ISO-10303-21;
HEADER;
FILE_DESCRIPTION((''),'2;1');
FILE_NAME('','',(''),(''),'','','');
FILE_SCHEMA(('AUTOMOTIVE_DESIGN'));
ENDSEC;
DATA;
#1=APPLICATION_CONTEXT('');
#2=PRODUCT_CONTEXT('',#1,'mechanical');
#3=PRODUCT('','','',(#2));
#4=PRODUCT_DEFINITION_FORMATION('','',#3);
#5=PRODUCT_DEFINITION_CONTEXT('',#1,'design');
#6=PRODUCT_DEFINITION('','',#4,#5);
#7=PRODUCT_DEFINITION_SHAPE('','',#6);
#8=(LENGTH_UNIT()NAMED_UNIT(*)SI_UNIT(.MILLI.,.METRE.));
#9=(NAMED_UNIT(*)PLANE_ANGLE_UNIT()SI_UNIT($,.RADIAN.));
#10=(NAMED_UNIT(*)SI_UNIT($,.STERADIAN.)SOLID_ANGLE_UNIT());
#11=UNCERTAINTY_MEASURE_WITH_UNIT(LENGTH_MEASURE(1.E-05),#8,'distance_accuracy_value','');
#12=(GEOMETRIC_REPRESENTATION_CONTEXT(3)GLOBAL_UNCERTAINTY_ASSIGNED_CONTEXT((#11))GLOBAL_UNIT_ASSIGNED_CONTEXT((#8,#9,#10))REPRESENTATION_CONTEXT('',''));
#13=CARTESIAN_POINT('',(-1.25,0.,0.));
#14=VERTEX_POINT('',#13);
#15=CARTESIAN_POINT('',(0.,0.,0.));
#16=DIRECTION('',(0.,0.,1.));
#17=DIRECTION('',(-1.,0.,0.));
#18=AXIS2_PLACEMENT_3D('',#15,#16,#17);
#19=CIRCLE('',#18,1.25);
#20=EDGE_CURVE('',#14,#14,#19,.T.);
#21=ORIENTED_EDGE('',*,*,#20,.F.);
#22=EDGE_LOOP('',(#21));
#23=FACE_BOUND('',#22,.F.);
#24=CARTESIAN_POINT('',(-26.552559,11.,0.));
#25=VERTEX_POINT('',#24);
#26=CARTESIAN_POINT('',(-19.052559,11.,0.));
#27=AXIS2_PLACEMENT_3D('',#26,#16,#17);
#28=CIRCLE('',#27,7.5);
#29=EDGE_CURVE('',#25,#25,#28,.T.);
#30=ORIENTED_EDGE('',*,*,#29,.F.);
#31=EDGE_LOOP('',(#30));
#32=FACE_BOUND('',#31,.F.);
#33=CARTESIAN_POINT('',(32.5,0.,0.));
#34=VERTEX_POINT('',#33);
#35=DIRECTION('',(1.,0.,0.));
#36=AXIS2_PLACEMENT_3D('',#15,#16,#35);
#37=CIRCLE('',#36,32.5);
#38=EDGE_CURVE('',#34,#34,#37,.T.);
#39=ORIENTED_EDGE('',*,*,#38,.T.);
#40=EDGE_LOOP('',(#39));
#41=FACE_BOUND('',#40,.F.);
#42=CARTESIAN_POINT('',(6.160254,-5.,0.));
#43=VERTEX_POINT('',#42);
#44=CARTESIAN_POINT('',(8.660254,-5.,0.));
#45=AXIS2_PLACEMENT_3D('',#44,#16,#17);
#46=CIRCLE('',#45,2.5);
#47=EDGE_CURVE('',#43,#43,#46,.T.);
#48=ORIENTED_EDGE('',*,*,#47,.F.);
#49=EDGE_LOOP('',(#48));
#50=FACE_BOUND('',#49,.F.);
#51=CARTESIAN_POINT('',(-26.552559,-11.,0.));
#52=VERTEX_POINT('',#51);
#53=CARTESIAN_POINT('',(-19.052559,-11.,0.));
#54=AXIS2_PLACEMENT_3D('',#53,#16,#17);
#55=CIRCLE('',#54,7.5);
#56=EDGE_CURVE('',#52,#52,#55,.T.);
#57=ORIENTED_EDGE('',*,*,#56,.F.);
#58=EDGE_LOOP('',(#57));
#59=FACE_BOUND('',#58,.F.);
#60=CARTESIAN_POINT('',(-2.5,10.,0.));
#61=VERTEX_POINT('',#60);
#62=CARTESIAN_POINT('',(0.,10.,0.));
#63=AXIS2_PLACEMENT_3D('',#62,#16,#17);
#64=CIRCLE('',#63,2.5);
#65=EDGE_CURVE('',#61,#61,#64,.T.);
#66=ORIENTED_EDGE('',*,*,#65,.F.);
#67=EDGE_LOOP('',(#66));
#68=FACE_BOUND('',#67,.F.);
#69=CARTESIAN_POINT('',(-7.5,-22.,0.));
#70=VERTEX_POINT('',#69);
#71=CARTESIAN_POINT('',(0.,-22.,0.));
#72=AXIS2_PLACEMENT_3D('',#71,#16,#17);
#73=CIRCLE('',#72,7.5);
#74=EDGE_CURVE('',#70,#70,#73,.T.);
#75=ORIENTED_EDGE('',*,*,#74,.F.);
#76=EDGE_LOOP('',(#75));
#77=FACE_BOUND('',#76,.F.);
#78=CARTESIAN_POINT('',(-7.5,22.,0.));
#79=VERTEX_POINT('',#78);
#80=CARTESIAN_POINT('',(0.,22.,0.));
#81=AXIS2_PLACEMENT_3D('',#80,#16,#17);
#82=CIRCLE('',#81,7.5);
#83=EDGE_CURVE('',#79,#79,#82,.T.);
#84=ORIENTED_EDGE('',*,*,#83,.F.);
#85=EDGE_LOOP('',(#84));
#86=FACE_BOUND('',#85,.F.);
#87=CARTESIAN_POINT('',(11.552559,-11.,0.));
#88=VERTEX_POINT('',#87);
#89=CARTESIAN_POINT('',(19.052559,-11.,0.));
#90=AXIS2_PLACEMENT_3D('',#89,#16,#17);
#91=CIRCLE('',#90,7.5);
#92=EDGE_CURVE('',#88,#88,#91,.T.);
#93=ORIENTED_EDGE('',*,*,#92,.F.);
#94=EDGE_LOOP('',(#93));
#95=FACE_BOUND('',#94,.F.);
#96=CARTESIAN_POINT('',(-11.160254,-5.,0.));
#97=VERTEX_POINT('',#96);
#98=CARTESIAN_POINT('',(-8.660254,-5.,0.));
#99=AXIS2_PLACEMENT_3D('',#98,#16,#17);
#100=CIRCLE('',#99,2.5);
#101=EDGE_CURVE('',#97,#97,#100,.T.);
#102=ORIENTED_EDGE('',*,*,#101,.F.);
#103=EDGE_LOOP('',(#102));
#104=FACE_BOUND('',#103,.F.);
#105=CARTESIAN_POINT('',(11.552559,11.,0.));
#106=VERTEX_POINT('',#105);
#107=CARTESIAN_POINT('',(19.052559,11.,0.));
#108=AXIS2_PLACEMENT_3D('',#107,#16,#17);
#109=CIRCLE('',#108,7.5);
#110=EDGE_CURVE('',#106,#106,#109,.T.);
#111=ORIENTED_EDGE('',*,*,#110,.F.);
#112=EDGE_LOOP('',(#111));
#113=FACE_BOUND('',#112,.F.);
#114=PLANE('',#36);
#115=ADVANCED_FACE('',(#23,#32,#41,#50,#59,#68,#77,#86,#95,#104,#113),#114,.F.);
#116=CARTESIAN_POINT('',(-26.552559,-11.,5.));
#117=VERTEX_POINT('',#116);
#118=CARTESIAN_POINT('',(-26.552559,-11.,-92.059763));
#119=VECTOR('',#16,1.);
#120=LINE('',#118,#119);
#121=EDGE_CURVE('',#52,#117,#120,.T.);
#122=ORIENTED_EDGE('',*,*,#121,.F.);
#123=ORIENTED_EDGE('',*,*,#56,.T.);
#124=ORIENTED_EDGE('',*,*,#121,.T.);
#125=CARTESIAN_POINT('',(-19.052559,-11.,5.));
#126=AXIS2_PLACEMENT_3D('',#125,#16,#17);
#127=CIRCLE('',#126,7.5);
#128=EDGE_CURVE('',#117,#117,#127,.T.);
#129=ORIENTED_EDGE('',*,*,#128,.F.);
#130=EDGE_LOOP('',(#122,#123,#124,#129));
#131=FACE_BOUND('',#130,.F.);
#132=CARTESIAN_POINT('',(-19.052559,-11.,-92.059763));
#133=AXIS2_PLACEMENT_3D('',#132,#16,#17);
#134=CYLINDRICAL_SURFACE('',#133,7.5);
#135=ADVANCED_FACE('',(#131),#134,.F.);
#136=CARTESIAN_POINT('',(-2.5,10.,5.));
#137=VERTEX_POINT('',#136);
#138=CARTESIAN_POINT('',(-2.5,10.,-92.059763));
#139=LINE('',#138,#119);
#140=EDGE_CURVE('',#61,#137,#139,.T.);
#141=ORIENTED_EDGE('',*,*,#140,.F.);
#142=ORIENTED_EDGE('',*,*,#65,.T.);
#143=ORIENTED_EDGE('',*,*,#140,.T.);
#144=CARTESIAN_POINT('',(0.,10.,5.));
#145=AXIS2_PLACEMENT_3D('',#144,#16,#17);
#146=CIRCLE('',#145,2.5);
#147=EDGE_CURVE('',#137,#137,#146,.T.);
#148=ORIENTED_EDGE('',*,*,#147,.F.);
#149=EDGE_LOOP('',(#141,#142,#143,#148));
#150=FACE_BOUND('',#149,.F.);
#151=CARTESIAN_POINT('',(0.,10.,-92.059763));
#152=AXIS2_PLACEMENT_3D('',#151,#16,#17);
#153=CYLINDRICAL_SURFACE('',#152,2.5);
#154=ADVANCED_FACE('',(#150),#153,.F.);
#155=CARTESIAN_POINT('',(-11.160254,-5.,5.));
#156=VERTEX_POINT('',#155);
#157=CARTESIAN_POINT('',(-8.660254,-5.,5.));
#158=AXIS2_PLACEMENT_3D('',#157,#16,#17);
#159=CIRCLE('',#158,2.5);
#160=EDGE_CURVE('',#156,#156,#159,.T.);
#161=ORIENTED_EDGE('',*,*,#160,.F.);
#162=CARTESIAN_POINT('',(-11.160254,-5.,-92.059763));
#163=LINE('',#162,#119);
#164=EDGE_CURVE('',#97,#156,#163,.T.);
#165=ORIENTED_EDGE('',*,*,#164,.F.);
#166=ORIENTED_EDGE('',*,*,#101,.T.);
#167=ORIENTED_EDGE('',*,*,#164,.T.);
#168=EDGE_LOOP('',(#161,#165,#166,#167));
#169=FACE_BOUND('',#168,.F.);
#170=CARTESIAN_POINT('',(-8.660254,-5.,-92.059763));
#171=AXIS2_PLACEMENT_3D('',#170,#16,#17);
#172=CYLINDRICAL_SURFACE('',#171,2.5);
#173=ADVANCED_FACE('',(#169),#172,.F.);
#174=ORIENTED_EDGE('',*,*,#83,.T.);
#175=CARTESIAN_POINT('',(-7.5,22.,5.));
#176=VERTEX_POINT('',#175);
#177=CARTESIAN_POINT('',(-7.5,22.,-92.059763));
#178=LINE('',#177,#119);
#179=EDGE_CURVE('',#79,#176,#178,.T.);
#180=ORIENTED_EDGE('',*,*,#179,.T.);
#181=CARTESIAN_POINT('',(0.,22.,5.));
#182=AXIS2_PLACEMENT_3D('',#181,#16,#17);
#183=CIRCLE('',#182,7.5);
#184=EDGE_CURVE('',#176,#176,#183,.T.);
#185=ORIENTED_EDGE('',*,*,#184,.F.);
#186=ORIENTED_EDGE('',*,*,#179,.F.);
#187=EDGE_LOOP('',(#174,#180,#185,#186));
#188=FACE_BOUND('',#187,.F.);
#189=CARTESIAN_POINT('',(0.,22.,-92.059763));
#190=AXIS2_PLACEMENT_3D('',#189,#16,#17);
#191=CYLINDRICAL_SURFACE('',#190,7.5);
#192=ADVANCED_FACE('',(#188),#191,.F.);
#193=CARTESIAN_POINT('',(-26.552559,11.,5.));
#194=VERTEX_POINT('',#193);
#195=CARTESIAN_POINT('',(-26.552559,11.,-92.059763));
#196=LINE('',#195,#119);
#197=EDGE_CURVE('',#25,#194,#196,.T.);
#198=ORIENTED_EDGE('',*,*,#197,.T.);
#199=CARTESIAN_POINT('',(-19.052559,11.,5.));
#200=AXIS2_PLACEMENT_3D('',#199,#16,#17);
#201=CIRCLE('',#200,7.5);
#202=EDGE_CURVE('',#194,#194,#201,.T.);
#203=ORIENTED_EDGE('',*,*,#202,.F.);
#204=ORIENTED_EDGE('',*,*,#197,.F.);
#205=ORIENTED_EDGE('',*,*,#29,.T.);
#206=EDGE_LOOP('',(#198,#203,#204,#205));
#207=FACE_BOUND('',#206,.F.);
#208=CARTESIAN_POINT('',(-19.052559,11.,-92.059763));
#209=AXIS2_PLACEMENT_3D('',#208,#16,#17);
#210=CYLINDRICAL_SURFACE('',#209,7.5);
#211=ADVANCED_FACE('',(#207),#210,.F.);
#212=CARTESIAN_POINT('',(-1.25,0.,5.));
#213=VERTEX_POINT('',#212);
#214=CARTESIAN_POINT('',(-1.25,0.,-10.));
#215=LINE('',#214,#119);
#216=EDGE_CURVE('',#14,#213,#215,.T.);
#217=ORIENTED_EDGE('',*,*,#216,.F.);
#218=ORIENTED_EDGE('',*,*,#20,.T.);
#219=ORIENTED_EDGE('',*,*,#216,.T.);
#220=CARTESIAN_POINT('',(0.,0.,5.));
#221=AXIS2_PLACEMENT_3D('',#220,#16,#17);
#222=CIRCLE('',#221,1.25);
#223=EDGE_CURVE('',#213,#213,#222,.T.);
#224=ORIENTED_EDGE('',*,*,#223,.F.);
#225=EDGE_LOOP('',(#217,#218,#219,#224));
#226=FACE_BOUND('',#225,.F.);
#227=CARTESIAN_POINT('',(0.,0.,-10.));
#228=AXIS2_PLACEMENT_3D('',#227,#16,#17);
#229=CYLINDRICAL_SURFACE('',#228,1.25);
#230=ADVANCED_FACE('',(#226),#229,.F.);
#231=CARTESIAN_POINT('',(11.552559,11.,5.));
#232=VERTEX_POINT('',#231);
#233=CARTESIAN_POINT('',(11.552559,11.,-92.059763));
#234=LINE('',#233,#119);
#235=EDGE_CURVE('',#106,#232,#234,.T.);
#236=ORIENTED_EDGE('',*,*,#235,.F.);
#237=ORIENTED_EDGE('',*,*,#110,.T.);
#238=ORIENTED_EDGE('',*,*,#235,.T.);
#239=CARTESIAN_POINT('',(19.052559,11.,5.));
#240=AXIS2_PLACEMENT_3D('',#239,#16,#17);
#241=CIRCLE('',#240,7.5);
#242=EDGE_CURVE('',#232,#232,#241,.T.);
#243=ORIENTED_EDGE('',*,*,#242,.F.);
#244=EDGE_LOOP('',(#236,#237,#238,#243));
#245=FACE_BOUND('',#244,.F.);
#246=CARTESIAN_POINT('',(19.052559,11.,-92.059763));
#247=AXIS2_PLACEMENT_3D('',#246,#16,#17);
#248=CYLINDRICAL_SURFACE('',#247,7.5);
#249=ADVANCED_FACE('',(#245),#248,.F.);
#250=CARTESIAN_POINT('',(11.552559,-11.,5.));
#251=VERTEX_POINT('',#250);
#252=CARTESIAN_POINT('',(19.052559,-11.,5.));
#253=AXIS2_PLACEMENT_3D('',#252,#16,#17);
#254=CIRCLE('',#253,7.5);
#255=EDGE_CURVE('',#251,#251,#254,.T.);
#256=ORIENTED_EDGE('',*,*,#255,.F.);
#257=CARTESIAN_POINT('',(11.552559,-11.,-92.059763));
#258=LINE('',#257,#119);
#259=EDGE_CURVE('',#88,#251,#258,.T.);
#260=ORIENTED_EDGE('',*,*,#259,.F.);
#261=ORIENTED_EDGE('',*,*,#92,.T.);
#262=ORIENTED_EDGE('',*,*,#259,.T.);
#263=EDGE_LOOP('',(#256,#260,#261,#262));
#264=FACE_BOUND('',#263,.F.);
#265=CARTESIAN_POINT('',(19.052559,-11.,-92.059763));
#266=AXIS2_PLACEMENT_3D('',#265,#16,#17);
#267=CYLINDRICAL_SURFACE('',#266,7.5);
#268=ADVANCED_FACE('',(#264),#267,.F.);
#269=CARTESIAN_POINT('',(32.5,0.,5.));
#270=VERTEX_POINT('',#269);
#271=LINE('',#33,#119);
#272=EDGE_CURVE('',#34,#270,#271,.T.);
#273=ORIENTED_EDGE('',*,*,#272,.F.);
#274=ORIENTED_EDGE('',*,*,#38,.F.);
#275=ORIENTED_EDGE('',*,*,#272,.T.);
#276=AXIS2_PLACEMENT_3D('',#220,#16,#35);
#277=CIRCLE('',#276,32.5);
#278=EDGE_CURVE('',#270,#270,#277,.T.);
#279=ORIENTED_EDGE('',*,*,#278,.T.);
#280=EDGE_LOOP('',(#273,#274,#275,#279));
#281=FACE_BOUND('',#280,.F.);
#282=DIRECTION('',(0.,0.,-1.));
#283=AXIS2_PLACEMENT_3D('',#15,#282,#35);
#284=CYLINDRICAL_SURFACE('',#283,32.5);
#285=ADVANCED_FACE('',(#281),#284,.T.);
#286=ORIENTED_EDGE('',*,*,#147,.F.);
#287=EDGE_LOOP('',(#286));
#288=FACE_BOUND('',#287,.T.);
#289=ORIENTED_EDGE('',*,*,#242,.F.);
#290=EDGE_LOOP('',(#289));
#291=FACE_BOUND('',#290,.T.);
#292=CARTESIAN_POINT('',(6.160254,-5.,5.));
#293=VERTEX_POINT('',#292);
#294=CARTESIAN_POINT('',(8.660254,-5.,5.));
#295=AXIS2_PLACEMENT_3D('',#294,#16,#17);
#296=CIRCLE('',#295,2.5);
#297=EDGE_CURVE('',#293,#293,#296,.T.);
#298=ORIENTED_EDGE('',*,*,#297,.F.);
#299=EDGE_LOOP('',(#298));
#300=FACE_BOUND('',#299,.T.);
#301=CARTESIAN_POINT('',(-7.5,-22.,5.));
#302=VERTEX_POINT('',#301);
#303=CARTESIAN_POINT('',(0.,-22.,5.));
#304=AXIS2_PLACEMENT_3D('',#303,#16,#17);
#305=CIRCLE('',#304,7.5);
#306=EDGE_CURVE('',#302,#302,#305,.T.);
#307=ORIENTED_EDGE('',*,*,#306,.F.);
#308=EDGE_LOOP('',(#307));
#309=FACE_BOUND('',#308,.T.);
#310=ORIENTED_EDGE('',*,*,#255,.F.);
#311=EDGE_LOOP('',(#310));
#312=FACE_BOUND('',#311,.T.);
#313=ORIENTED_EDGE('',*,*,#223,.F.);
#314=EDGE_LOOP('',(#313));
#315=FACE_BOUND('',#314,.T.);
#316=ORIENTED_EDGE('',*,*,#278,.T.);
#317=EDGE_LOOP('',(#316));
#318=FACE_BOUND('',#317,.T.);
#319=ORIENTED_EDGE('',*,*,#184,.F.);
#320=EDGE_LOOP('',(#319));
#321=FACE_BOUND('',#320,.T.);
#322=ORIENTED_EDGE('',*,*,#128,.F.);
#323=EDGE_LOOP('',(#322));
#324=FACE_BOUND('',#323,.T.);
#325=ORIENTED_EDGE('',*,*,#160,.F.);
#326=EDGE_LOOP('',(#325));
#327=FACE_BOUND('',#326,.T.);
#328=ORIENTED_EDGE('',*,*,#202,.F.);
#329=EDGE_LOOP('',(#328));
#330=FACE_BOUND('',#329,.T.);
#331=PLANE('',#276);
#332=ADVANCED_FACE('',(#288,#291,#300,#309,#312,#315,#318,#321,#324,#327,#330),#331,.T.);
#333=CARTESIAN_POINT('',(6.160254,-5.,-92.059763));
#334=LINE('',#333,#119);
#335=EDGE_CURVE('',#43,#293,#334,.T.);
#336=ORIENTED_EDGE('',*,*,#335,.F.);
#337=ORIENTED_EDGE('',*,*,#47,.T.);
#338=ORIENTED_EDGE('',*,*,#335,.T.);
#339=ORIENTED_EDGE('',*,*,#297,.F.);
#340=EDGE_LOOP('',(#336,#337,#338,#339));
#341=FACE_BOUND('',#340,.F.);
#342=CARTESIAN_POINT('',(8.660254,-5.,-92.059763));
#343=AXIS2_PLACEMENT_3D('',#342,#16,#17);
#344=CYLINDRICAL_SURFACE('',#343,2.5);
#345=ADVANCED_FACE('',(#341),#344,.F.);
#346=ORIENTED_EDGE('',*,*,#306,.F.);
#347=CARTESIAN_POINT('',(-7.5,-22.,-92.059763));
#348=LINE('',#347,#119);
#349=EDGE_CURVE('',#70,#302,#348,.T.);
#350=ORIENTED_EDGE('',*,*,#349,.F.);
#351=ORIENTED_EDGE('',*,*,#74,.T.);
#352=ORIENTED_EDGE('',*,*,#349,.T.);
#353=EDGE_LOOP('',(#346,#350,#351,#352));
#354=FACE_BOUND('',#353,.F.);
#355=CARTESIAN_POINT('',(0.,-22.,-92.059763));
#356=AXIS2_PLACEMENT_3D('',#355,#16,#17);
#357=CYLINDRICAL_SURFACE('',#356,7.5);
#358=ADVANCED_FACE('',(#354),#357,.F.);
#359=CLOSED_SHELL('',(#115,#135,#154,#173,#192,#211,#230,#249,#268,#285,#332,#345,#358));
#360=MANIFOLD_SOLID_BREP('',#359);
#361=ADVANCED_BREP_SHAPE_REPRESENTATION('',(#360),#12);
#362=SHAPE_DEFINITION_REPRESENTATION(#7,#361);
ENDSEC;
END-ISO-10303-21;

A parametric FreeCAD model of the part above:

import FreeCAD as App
import Part
import Sketcher
from FreeCAD import Vector
Q = App.Units.Quantity

doc = App.newDocument("Part")
body = doc.addObject("PartDesign::Body", "Body")

sketch1 = body.newObject("Sketcher::SketchObject", "Sketch")
sketch1.AttachmentSupport = (doc.getObject("XY_Plane"), [""])
sketch1.MapMode = "FlatFace"
sketch1.addGeometry(Part.Circle(Vector(0, 0, 0), Vector(0, 0, 1), 32), False)
sketch1.addConstraint([
    Sketcher.Constraint("Coincident", 0, 3, -1, 1),
    Sketcher.Constraint("Diameter", 0, Q("65 mm")),
])
pad1 = body.newObject("PartDesign::Pad", "Pad")
pad1.Profile = sketch1
pad1.Length = 5

sketch2 = body.newObject("Sketcher::SketchObject", "Sketch001")
sketch2.AttachmentSupport = (doc.getObject("XY_Plane"), [""])
sketch2.MapMode = "FlatFace"
sketch2.addGeometry([
    Part.Circle(Vector(19, 11, 0), Vector(0, 0, 1), 8),
    Part.Circle(Vector(0, 22, 0), Vector(0, 0, 1), 8),
    Part.Circle(Vector(-19, 11, 0), Vector(0, 0, 1), 8),
    Part.Circle(Vector(-19, -11, 0), Vector(0, 0, 1), 8),
    Part.Circle(Vector(0, -22, 0), Vector(0, 0, 1), 8),
    Part.Circle(Vector(19, -11, 0), Vector(0, 0, 1), 8),
], False)
sketch2.addConstraint([
    Sketcher.Constraint("Equal", 0, 1),
    Sketcher.Constraint("Equal", 1, 2),
    Sketcher.Constraint("Equal", 2, 3),
    Sketcher.Constraint("Equal", 3, 4),
    Sketcher.Constraint("Equal", 4, 5),
    Sketcher.Constraint("Symmetric", 0, 3, 3, 3, -1, 1),
    Sketcher.Constraint("Symmetric", 1, 3, 4, 3, -1, 1),
    Sketcher.Constraint("Symmetric", 2, 3, 5, 3, -1, 1),
    Sketcher.Constraint("Symmetric", 0, 3, 2, 3, -2),
    Sketcher.Constraint("PointOnObject", 1, 3, -2),
    Sketcher.Constraint("Diameter", 0, Q("15 mm")),
    Sketcher.Constraint("DistanceY", -1, 1, 0, 3, Q("11 mm")),
    Sketcher.Constraint("DistanceY", -1, 1, 1, 3, Q("22 mm")),
    Sketcher.Constraint("DistanceX", -1, 1, 0, 3, Q("19.052559 mm")),
])
doc.recompute()
hole = body.newObject("PartDesign::Hole", "Hole")
hole.Profile = sketch2
hole.ThreadType = "None"
hole.Diameter = 15
hole.DepthType = "ThroughAll"
hole.Reversed = True

sketch3 = body.newObject("Sketcher::SketchObject", "Sketch002")
sketch3.AttachmentSupport = (doc.getObject("XY_Plane"), [""])
sketch3.MapMode = "FlatFace"
sketch3.addGeometry([
    Part.Circle(Vector(-8.7, -5, 0), Vector(0, 0, 1), 2.5),
    Part.Circle(Vector(0, 10, 0), Vector(0, 0, 1), 2.5),
    Part.Circle(Vector(8.7, -5, 0), Vector(0, 0, 1), 2.5),
], False)
sketch3.addConstraint([
    Sketcher.Constraint("Equal", 0, 1),
    Sketcher.Constraint("Equal", 1, 2),
    Sketcher.Constraint("Symmetric", 0, 3, 2, 3, -2),
    Sketcher.Constraint("PointOnObject", 1, 3, -2),
    Sketcher.Constraint("Diameter", 0, Q("5 mm")),
    Sketcher.Constraint("DistanceY", 0, 3, -1, 1, Q("5 mm")),
    Sketcher.Constraint("DistanceY", -1, 1, 1, 3, Q("10 mm")),
    Sketcher.Constraint("DistanceX", 0, 3, 2, 3, Q("17.320508 mm")),
])
doc.recompute()
hole2 = body.newObject("PartDesign::Hole", "Hole001")
hole2.Profile = sketch3
hole2.ThreadType = "None"
hole2.Diameter = 5
hole2.DepthType = "ThroughAll"
hole2.Reversed = True

sketch4 = body.newObject("Sketcher::SketchObject", "Sketch003")
sketch4.AttachmentSupport = (doc.getObject("XY_Plane"), [""])
sketch4.MapMode = "FlatFace"
sketch4.addGeometry(Part.Circle(Vector(0, 0, 0), Vector(0, 0, 1), 1.2), False)
sketch4.addConstraint([
    Sketcher.Constraint("Coincident", 0, 3, -1, 1),
    Sketcher.Constraint("Diameter", 0, Q("2.5 mm")),
])
doc.recompute()
hole3 = body.newObject("PartDesign::Hole", "Hole002")
hole3.Profile = sketch4
hole3.ThreadType = "None"
hole3.Diameter = 2.5
hole3.DepthType = "Dimension"
hole3.Depth = 10
hole3.DrillPoint = "Angled"
hole3.DrillPointAngle = 118
hole3.Reversed = True

doc.recompute()
